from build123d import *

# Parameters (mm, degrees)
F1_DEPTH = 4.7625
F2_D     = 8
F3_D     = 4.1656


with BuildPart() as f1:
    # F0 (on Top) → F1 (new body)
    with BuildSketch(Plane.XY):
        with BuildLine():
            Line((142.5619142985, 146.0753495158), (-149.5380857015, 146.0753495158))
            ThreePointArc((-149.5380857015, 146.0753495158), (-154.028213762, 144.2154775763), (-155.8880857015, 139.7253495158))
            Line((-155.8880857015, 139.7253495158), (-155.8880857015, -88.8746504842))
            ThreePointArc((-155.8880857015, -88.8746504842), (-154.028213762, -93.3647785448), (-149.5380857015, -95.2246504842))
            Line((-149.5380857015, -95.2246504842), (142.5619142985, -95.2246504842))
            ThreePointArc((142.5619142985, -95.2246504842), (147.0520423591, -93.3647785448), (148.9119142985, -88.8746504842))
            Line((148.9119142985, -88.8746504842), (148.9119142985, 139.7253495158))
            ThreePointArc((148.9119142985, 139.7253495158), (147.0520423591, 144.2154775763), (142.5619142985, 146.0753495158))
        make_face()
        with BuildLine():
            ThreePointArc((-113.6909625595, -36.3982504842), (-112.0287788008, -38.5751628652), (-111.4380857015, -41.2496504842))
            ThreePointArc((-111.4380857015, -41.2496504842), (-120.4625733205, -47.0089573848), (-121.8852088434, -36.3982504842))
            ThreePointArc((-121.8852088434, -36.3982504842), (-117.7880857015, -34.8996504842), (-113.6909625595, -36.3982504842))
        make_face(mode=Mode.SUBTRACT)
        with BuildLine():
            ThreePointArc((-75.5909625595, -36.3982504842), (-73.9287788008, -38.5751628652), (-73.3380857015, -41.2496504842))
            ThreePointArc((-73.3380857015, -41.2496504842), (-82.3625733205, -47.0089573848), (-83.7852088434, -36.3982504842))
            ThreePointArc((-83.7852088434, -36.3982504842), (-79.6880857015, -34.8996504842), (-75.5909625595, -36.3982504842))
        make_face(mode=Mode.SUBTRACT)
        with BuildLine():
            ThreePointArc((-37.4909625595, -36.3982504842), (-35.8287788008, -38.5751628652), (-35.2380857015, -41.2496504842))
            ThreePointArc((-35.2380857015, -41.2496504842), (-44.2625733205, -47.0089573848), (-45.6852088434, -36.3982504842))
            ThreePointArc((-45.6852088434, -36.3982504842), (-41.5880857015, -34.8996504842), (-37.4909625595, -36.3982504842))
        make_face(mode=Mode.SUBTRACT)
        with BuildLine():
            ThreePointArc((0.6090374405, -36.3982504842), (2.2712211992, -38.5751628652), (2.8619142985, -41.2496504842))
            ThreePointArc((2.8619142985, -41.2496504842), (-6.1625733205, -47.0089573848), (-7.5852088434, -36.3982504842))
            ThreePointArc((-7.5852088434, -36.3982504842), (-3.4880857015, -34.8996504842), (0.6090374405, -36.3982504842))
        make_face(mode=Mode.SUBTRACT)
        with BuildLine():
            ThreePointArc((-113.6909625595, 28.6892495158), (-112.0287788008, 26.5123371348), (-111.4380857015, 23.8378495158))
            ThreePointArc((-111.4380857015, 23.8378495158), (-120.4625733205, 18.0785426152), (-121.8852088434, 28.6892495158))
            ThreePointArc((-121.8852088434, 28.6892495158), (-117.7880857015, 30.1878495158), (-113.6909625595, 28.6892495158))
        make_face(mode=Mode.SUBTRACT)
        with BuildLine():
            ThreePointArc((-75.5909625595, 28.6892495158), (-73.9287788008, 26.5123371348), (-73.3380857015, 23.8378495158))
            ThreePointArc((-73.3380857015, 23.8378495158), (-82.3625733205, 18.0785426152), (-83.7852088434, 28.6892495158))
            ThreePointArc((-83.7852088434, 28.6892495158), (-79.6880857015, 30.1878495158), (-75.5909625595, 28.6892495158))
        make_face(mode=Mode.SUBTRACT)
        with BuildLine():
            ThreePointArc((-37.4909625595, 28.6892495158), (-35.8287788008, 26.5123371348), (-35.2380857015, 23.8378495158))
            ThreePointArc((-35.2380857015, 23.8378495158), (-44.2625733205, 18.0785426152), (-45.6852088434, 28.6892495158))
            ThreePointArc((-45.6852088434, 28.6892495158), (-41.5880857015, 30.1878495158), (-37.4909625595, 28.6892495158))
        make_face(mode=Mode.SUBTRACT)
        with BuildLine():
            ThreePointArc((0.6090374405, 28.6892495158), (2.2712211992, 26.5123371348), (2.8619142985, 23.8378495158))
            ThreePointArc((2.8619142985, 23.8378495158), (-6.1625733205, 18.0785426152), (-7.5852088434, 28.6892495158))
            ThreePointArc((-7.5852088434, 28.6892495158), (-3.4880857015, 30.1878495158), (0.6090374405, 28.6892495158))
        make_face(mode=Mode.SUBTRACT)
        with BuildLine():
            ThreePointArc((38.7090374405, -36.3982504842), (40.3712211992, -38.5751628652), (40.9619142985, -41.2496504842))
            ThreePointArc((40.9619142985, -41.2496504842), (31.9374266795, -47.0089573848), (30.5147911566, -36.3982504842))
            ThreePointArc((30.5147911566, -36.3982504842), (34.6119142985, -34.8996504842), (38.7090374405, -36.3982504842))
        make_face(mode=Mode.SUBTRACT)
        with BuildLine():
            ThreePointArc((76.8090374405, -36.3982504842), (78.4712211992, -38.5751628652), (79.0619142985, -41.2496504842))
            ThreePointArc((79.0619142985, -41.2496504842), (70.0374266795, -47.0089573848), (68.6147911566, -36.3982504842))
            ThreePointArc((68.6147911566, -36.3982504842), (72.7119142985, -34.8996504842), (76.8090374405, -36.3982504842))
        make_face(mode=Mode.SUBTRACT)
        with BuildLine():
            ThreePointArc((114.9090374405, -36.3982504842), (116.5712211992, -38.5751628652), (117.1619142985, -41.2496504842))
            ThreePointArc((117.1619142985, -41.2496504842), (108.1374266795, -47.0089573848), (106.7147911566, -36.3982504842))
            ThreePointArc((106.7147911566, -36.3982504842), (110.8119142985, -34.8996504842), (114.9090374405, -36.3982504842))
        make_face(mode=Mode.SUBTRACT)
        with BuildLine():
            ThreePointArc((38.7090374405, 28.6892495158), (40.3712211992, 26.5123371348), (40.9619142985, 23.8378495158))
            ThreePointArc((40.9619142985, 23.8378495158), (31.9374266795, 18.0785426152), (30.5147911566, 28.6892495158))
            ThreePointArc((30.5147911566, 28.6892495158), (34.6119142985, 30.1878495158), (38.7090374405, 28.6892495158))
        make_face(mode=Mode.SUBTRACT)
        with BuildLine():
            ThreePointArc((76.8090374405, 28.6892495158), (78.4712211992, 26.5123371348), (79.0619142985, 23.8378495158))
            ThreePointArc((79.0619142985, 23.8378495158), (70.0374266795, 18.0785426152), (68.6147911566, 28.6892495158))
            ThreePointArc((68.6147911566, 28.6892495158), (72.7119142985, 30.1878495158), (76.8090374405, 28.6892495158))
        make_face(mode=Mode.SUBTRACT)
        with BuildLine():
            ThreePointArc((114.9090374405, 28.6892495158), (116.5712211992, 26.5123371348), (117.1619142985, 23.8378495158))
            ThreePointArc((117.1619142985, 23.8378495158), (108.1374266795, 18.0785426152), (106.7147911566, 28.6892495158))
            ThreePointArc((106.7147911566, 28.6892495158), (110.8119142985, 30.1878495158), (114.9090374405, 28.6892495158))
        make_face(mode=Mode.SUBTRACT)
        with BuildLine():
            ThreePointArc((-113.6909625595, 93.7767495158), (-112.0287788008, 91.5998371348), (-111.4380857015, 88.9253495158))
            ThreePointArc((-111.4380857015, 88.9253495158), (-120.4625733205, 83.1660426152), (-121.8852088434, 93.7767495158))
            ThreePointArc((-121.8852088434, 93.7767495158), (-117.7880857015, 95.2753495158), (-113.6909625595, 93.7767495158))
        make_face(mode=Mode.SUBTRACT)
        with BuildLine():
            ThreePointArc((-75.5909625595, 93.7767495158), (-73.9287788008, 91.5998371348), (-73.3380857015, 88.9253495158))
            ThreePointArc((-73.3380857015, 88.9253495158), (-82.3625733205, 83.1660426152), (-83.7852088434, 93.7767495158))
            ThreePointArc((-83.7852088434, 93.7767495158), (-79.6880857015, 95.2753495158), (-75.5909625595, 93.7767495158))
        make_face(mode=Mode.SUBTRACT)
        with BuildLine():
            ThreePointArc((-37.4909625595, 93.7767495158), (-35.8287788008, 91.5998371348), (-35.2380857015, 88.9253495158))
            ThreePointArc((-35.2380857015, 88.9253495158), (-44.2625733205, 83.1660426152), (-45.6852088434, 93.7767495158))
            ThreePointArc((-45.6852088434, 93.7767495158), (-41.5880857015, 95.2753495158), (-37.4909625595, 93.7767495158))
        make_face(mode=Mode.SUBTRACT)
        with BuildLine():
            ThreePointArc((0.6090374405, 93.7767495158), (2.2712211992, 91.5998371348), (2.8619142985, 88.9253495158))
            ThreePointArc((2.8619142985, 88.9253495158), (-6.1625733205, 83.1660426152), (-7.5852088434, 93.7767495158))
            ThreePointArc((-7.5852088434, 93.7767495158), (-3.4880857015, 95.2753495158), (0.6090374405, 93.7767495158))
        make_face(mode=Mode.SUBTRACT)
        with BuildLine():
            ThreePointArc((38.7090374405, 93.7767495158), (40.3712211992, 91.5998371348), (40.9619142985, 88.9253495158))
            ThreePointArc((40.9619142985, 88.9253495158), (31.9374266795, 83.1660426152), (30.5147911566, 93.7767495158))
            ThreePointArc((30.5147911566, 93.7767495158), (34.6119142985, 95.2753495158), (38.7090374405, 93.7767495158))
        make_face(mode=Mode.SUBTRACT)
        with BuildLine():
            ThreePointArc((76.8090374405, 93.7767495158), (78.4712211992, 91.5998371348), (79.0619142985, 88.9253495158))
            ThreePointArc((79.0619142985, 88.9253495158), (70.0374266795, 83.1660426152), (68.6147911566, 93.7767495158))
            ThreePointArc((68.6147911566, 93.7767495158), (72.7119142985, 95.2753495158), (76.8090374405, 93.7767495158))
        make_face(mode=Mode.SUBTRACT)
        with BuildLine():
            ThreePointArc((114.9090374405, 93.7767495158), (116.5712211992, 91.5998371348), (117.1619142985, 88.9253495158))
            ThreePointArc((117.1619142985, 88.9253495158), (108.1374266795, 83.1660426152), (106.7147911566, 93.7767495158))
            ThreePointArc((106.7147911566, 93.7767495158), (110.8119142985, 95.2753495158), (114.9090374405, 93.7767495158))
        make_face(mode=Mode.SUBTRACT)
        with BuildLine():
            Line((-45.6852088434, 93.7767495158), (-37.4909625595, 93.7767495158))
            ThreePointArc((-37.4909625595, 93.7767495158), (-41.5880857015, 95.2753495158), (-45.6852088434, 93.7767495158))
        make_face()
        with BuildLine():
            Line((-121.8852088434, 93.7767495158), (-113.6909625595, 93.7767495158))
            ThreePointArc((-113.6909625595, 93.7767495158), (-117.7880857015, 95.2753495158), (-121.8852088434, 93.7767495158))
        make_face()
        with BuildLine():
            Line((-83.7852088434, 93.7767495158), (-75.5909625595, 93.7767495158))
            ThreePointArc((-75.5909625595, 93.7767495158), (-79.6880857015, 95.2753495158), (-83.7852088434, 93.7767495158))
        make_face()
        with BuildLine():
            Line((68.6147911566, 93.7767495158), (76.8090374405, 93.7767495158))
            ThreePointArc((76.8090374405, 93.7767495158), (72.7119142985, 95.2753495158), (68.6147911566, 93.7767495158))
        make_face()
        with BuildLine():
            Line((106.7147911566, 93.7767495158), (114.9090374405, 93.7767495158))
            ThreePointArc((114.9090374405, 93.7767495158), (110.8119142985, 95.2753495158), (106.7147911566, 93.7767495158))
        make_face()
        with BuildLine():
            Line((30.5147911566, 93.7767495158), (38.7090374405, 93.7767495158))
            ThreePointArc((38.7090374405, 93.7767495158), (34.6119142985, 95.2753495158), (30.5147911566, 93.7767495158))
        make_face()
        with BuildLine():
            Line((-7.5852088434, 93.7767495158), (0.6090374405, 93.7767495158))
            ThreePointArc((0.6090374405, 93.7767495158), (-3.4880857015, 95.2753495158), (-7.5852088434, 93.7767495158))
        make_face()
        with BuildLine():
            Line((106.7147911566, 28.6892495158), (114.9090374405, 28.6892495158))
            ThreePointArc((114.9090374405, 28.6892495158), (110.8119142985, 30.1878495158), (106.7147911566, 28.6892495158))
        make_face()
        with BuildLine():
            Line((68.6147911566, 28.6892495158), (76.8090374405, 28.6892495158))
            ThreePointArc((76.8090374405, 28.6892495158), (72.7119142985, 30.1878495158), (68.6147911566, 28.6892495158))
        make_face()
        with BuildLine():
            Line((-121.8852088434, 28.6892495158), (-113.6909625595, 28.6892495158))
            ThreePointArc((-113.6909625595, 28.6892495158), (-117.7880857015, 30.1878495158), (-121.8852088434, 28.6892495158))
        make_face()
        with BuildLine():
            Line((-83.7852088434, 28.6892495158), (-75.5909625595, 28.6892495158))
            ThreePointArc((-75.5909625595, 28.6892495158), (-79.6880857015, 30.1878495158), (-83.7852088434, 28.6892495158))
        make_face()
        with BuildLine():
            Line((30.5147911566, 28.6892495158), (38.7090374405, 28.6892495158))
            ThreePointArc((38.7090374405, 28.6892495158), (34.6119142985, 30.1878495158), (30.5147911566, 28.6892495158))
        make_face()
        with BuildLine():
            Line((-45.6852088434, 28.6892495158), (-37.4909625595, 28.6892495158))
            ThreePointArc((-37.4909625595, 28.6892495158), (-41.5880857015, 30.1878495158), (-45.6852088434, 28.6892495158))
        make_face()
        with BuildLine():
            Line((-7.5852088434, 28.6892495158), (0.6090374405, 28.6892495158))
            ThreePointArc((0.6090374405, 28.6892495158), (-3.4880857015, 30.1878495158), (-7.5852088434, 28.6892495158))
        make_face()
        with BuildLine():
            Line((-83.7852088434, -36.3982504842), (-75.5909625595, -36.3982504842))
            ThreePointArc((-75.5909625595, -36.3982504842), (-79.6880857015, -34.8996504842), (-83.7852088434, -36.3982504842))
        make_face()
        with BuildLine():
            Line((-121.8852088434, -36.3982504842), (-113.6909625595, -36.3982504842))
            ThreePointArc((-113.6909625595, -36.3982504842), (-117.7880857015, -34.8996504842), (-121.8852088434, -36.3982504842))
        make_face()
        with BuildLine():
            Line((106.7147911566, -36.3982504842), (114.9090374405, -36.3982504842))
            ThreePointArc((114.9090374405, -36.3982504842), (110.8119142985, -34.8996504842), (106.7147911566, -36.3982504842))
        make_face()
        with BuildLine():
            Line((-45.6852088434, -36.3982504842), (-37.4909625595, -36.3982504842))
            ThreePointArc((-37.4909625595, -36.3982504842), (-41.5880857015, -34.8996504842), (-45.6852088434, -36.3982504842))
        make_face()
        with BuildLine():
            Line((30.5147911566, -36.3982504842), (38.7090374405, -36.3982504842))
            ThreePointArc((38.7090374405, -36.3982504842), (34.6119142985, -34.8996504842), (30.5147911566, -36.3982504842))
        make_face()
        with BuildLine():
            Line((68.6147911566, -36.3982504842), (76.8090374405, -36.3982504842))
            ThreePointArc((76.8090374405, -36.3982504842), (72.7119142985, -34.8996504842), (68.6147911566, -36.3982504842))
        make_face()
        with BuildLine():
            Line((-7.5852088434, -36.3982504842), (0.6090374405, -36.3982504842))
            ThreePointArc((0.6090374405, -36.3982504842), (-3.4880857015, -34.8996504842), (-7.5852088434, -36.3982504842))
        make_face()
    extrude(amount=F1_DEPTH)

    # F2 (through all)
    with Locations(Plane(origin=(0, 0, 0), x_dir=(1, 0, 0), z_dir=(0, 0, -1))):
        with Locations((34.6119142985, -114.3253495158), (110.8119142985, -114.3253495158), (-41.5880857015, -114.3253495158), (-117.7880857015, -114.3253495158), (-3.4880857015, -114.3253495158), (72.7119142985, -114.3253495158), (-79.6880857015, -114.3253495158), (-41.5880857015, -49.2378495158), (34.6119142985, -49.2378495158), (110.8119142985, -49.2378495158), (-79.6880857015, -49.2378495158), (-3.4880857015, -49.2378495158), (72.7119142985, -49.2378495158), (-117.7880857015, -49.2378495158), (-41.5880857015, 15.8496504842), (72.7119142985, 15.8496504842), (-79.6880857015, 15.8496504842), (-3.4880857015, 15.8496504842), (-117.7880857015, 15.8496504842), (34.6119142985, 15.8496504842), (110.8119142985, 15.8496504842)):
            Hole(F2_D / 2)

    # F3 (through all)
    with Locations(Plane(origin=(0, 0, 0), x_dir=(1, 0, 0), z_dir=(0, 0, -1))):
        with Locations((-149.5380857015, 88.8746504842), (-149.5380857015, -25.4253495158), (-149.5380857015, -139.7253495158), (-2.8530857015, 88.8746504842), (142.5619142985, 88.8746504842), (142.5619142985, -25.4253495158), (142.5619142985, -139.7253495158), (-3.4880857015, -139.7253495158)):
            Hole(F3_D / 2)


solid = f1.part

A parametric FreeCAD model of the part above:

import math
import FreeCAD as App
import Part
import Sketcher
Q = App.Units.Quantity

doc = App.newDocument("Part")
params = doc.addObject("Spreadsheet::Sheet", "Params")
for row, (alias, value) in enumerate([
    ("sketch1_height", "9 in"),
    ("sketch1_radius", "0.25 in"),
    ("sketch1_width", "11.5 in"),
    ("pad1_length", "0.1875 in"),
    ("hole_diameter", "8 mm"),
    ("sketch3_diameter", "0.164 in"),
    ("hole2_diameter", "0.164 in"),
], start=1):
    params.set(f"A{row}", alias)
    params.set(f"B{row}", "=" + value)
    params.setAlias(f"B{row}", alias)

body = doc.addObject("PartDesign::Body", "Body")

# Sketch on XY plane
sketch1 = body.newObject("Sketcher::SketchObject", "Sketch")
sketch1.AttachmentSupport = (doc.getObject("XY_Plane"), [""])
sketch1.MapMode = "FlatFace"
sketch1.addGeometry(Part.LineSegment(App.Vector(143, 146, 0), App.Vector(-150, 146, 0)), False)
sketch1.addGeometry(Part.ArcOfCircle(Part.Circle(App.Vector(-150, 140, 0), App.Vector(0, 0, 1), 6), math.radians(90), math.radians(180)), False)
sketch1.addGeometry(Part.LineSegment(App.Vector(-156, 140, 0), App.Vector(-156, -89, 0)), False)
sketch1.addGeometry(Part.ArcOfCircle(Part.Circle(App.Vector(-150, -89, 0), App.Vector(0, 0, 1), 6), math.radians(180), math.radians(270)), False)
sketch1.addGeometry(Part.LineSegment(App.Vector(-150, -95, 0), App.Vector(143, -95, 0)), False)
sketch1.addGeometry(Part.ArcOfCircle(Part.Circle(App.Vector(143, -89, 0), App.Vector(0, 0, 1), 6), math.radians(-90), math.radians(0)), False)
sketch1.addGeometry(Part.LineSegment(App.Vector(149, -89, 0), App.Vector(149, 140, 0)), False)
sketch1.addGeometry(Part.ArcOfCircle(Part.Circle(App.Vector(143, 140, 0), App.Vector(0, 0, 1), 6), math.radians(0), math.radians(90)), False)
sketch1.addGeometry(Part.ArcOfCircle(Part.Circle(App.Vector(-118, -41, 0), App.Vector(0, 0, 1), 6), math.radians(0), math.radians(50)), False)
sketch1.addGeometry(Part.ArcOfCircle(Part.Circle(App.Vector(-118, -41, 0), App.Vector(0, 0, 1), 6), math.radians(130), math.radians(360)), False)
sketch1.addGeometry(Part.LineSegment(App.Vector(-122, -36, 0), App.Vector(-114, -36, 0)), False)
sketch1.addGeometry(Part.ArcOfCircle(Part.Circle(App.Vector(-80, -41, 0), App.Vector(0, 0, 1), 6), math.radians(0), math.radians(50)), False)
sketch1.addGeometry(Part.ArcOfCircle(Part.Circle(App.Vector(-80, -41, 0), App.Vector(0, 0, 1), 6), math.radians(130), math.radians(360)), False)
sketch1.addGeometry(Part.LineSegment(App.Vector(-84, -36, 0), App.Vector(-76, -36, 0)), False)
sketch1.addGeometry(Part.ArcOfCircle(Part.Circle(App.Vector(-42, -41, 0), App.Vector(0, 0, 1), 6), math.radians(0), math.radians(50)), False)
sketch1.addGeometry(Part.ArcOfCircle(Part.Circle(App.Vector(-42, -41, 0), App.Vector(0, 0, 1), 6), math.radians(130), math.radians(360)), False)
sketch1.addGeometry(Part.LineSegment(App.Vector(-46, -36, 0), App.Vector(-37, -36, 0)), False)
sketch1.addGeometry(Part.ArcOfCircle(Part.Circle(App.Vector(-3, -41, 0), App.Vector(0, 0, 1), 6), math.radians(0), math.radians(50)), False)
sketch1.addGeometry(Part.ArcOfCircle(Part.Circle(App.Vector(-3, -41, 0), App.Vector(0, 0, 1), 6), math.radians(130), math.radians(360)), False)
sketch1.addGeometry(Part.LineSegment(App.Vector(-8, -36, 0), App.Vector(1, -36, 0)), False)
sketch1.addGeometry(Part.ArcOfCircle(Part.Circle(App.Vector(35, -41, 0), App.Vector(0, 0, 1), 6), math.radians(0), math.radians(50)), False)
sketch1.addGeometry(Part.ArcOfCircle(Part.Circle(App.Vector(35, -41, 0), App.Vector(0, 0, 1), 6), math.radians(130), math.radians(360)), False)
sketch1.addGeometry(Part.LineSegment(App.Vector(31, -36, 0), App.Vector(39, -36, 0)), False)
sketch1.addGeometry(Part.ArcOfCircle(Part.Circle(App.Vector(73, -41, 0), App.Vector(0, 0, 1), 6), math.radians(0), math.radians(50)), False)
sketch1.addGeometry(Part.ArcOfCircle(Part.Circle(App.Vector(73, -41, 0), App.Vector(0, 0, 1), 6), math.radians(130), math.radians(360)), False)
sketch1.addGeometry(Part.LineSegment(App.Vector(69, -36, 0), App.Vector(77, -36, 0)), False)
sketch1.addGeometry(Part.ArcOfCircle(Part.Circle(App.Vector(111, -41, 0), App.Vector(0, 0, 1), 6), math.radians(0), math.radians(50)), False)
sketch1.addGeometry(Part.ArcOfCircle(Part.Circle(App.Vector(111, -41, 0), App.Vector(0, 0, 1), 6), math.radians(130), math.radians(360)), False)
sketch1.addGeometry(Part.LineSegment(App.Vector(107, -36, 0), App.Vector(115, -36, 0)), False)
sketch1.addGeometry(Part.ArcOfCircle(Part.Circle(App.Vector(-118, 24, 0), App.Vector(0, 0, 1), 6), math.radians(0), math.radians(50)), False)
sketch1.addGeometry(Part.ArcOfCircle(Part.Circle(App.Vector(-118, 24, 0), App.Vector(0, 0, 1), 6), math.radians(130), math.radians(360)), False)
sketch1.addGeometry(Part.LineSegment(App.Vector(-122, 29, 0), App.Vector(-114, 29, 0)), False)
sketch1.addGeometry(Part.ArcOfCircle(Part.Circle(App.Vector(-80, 24, 0), App.Vector(0, 0, 1), 6), math.radians(0), math.radians(50)), False)
sketch1.addGeometry(Part.ArcOfCircle(Part.Circle(App.Vector(-80, 24, 0), App.Vector(0, 0, 1), 6), math.radians(130), math.radians(360)), False)
sketch1.addGeometry(Part.LineSegment(App.Vector(-84, 29, 0), App.Vector(-76, 29, 0)), False)
sketch1.addGeometry(Part.ArcOfCircle(Part.Circle(App.Vector(-42, 24, 0), App.Vector(0, 0, 1), 6), math.radians(0), math.radians(50)), False)
sketch1.addGeometry(Part.ArcOfCircle(Part.Circle(App.Vector(-42, 24, 0), App.Vector(0, 0, 1), 6), math.radians(130), math.radians(360)), False)
sketch1.addGeometry(Part.LineSegment(App.Vector(-46, 29, 0), App.Vector(-37, 29, 0)), False)
sketch1.addGeometry(Part.ArcOfCircle(Part.Circle(App.Vector(-118, 89, 0), App.Vector(0, 0, 1), 6), math.radians(0), math.radians(50)), False)
sketch1.addGeometry(Part.ArcOfCircle(Part.Circle(App.Vector(-118, 89, 0), App.Vector(0, 0, 1), 6), math.radians(130), math.radians(360)), False)
sketch1.addGeometry(Part.LineSegment(App.Vector(-122, 94, 0), App.Vector(-114, 94, 0)), False)
sketch1.addGeometry(Part.ArcOfCircle(Part.Circle(App.Vector(-80, 89, 0), App.Vector(0, 0, 1), 6), math.radians(0), math.radians(50)), False)
sketch1.addGeometry(Part.ArcOfCircle(Part.Circle(App.Vector(-80, 89, 0), App.Vector(0, 0, 1), 6), math.radians(130), math.radians(360)), False)
sketch1.addGeometry(Part.LineSegment(App.Vector(-84, 94, 0), App.Vector(-76, 94, 0)), False)
sketch1.addGeometry(Part.ArcOfCircle(Part.Circle(App.Vector(-42, 89, 0), App.Vector(0, 0, 1), 6), math.radians(130), math.radians(360)), False)
sketch1.addGeometry(Part.LineSegment(App.Vector(-46, 94, 0), App.Vector(-37, 94, 0)), False)
sketch1.addGeometry(Part.ArcOfCircle(Part.Circle(App.Vector(-42, 89, 0), App.Vector(0, 0, 1), 6), math.radians(0), math.radians(50)), False)
sketch1.addGeometry(Part.ArcOfCircle(Part.Circle(App.Vector(-3, 24, 0), App.Vector(0, 0, 1), 6), math.radians(0), math.radians(50)), False)
sketch1.addGeometry(Part.ArcOfCircle(Part.Circle(App.Vector(-3, 24, 0), App.Vector(0, 0, 1), 6), math.radians(130), math.radians(360)), False)
sketch1.addGeometry(Part.LineSegment(App.Vector(-8, 29, 0), App.Vector(1, 29, 0)), False)
sketch1.addGeometry(Part.ArcOfCircle(Part.Circle(App.Vector(35, 24, 0), App.Vector(0, 0, 1), 6), math.radians(0), math.radians(50)), False)
sketch1.addGeometry(Part.ArcOfCircle(Part.Circle(App.Vector(35, 24, 0), App.Vector(0, 0, 1), 6), math.radians(130), math.radians(360)), False)
sketch1.addGeometry(Part.LineSegment(App.Vector(31, 29, 0), App.Vector(39, 29, 0)), False)
sketch1.addGeometry(Part.ArcOfCircle(Part.Circle(App.Vector(73, 24, 0), App.Vector(0, 0, 1), 6), math.radians(0), math.radians(50)), False)
sketch1.addGeometry(Part.ArcOfCircle(Part.Circle(App.Vector(73, 24, 0), App.Vector(0, 0, 1), 6), math.radians(130), math.radians(360)), False)
sketch1.addGeometry(Part.LineSegment(App.Vector(69, 29, 0), App.Vector(77, 29, 0)), False)
sketch1.addGeometry(Part.ArcOfCircle(Part.Circle(App.Vector(111, 24, 0), App.Vector(0, 0, 1), 6), math.radians(0), math.radians(50)), False)
sketch1.addGeometry(Part.ArcOfCircle(Part.Circle(App.Vector(111, 24, 0), App.Vector(0, 0, 1), 6), math.radians(130), math.radians(360)), False)
sketch1.addGeometry(Part.LineSegment(App.Vector(107, 29, 0), App.Vector(115, 29, 0)), False)
sketch1.addGeometry(Part.ArcOfCircle(Part.Circle(App.Vector(-3, 89, 0), App.Vector(0, 0, 1), 6), math.radians(0), math.radians(50)), False)
sketch1.addGeometry(Part.ArcOfCircle(Part.Circle(App.Vector(-3, 89, 0), App.Vector(0, 0, 1), 6), math.radians(130), math.radians(360)), False)
sketch1.addGeometry(Part.LineSegment(App.Vector(-8, 94, 0), App.Vector(1, 94, 0)), False)
sketch1.addGeometry(Part.ArcOfCircle(Part.Circle(App.Vector(35, 89, 0), App.Vector(0, 0, 1), 6), math.radians(0), math.radians(50)), False)
sketch1.addGeometry(Part.ArcOfCircle(Part.Circle(App.Vector(35, 89, 0), App.Vector(0, 0, 1), 6), math.radians(130), math.radians(360)), False)
sketch1.addGeometry(Part.LineSegment(App.Vector(31, 94, 0), App.Vector(39, 94, 0)), False)
sketch1.addGeometry(Part.ArcOfCircle(Part.Circle(App.Vector(73, 89, 0), App.Vector(0, 0, 1), 6), math.radians(0), math.radians(50)), False)
sketch1.addGeometry(Part.ArcOfCircle(Part.Circle(App.Vector(73, 89, 0), App.Vector(0, 0, 1), 6), math.radians(130), math.radians(360)), False)
sketch1.addGeometry(Part.LineSegment(App.Vector(69, 94, 0), App.Vector(77, 94, 0)), False)
sketch1.addGeometry(Part.ArcOfCircle(Part.Circle(App.Vector(111, 89, 0), App.Vector(0, 0, 1), 6), math.radians(0), math.radians(50)), False)
sketch1.addGeometry(Part.ArcOfCircle(Part.Circle(App.Vector(111, 89, 0), App.Vector(0, 0, 1), 6), math.radians(130), math.radians(360)), False)
sketch1.addGeometry(Part.LineSegment(App.Vector(107, 94, 0), App.Vector(115, 94, 0)), False)
sketch1.addConstraint(Sketcher.Constraint("Tangent", 0, 2, 1, 1))
sketch1.addConstraint(Sketcher.Constraint("Tangent", 1, 2, 2, 1))
sketch1.addConstraint(Sketcher.Constraint("Tangent", 2, 2, 3, 1))
sketch1.addConstraint(Sketcher.Constraint("Tangent", 3, 2, 4, 1))
sketch1.addConstraint(Sketcher.Constraint("Tangent", 4, 2, 5, 1))
sketch1.addConstraint(Sketcher.Constraint("Tangent", 5, 2, 6, 1))
sketch1.addConstraint(Sketcher.Constraint("Tangent", 6, 2, 7, 1))
sketch1.addConstraint(Sketcher.Constraint("Tangent", 7, 2, 0, 1))
sketch1.addConstraint(Sketcher.Constraint("Tangent", 8, 1, 9, 2))
sketch1.addConstraint(Sketcher.Constraint("Coincident", 9, 1, 10, 1))
sketch1.addConstraint(Sketcher.Constraint("Coincident", 10, 2, 8, 2))
sketch1.addConstraint(Sketcher.Constraint("Tangent", 11, 1, 12, 2))
sketch1.addConstraint(Sketcher.Constraint("Coincident", 12, 1, 13, 1))
sketch1.addConstraint(Sketcher.Constraint("Coincident", 13, 2, 11, 2))
sketch1.addConstraint(Sketcher.Constraint("Tangent", 14, 1, 15, 2))
sketch1.addConstraint(Sketcher.Constraint("Coincident", 15, 1, 16, 1))
sketch1.addConstraint(Sketcher.Constraint("Coincident", 16, 2, 14, 2))
sketch1.addConstraint(Sketcher.Constraint("Tangent", 17, 1, 18, 2))
sketch1.addConstraint(Sketcher.Constraint("Coincident", 18, 1, 19, 1))
sketch1.addConstraint(Sketcher.Constraint("Coincident", 19, 2, 17, 2))
sketch1.addConstraint(Sketcher.Constraint("Tangent", 20, 1, 21, 2))
sketch1.addConstraint(Sketcher.Constraint("Coincident", 21, 1, 22, 1))
sketch1.addConstraint(Sketcher.Constraint("Coincident", 22, 2, 20, 2))
sketch1.addConstraint(Sketcher.Constraint("Tangent", 23, 1, 24, 2))
sketch1.addConstraint(Sketcher.Constraint("Coincident", 24, 1, 25, 1))
sketch1.addConstraint(Sketcher.Constraint("Coincident", 25, 2, 23, 2))
sketch1.addConstraint(Sketcher.Constraint("Tangent", 26, 1, 27, 2))
sketch1.addConstraint(Sketcher.Constraint("Coincident", 27, 1, 28, 1))
sketch1.addConstraint(Sketcher.Constraint("Coincident", 28, 2, 26, 2))
sketch1.addConstraint(Sketcher.Constraint("Tangent", 29, 1, 30, 2))
sketch1.addConstraint(Sketcher.Constraint("Coincident", 30, 1, 31, 1))
sketch1.addConstraint(Sketcher.Constraint("Coincident", 31, 2, 29, 2))
sketch1.addConstraint(Sketcher.Constraint("Tangent", 32, 1, 33, 2))
sketch1.addConstraint(Sketcher.Constraint("Coincident", 33, 1, 34, 1))
sketch1.addConstraint(Sketcher.Constraint("Coincident", 34, 2, 32, 2))
sketch1.addConstraint(Sketcher.Constraint("Tangent", 35, 1, 36, 2))
sketch1.addConstraint(Sketcher.Constraint("Coincident", 36, 1, 37, 1))
sketch1.addConstraint(Sketcher.Constraint("Coincident", 37, 2, 35, 2))
sketch1.addConstraint(Sketcher.Constraint("Tangent", 38, 1, 39, 2))
sketch1.addConstraint(Sketcher.Constraint("Coincident", 39, 1, 40, 1))
sketch1.addConstraint(Sketcher.Constraint("Coincident", 40, 2, 38, 2))
sketch1.addConstraint(Sketcher.Constraint("Tangent", 41, 1, 42, 2))
sketch1.addConstraint(Sketcher.Constraint("Coincident", 42, 1, 43, 1))
sketch1.addConstraint(Sketcher.Constraint("Coincident", 43, 2, 41, 2))
sketch1.addConstraint(Sketcher.Constraint("Coincident", 44, 1, 45, 1))
sketch1.addConstraint(Sketcher.Constraint("Coincident", 45, 2, 46, 2))
sketch1.addConstraint(Sketcher.Constraint("Tangent", 46, 1, 44, 2))
sketch1.addConstraint(Sketcher.Constraint("Tangent", 47, 1, 48, 2))
sketch1.addConstraint(Sketcher.Constraint("Coincident", 48, 1, 49, 1))
sketch1.addConstraint(Sketcher.Constraint("Coincident", 49, 2, 47, 2))
sketch1.addConstraint(Sketcher.Constraint("Tangent", 50, 1, 51, 2))
sketch1.addConstraint(Sketcher.Constraint("Coincident", 51, 1, 52, 1))
sketch1.addConstraint(Sketcher.Constraint("Coincident", 52, 2, 50, 2))
sketch1.addConstraint(Sketcher.Constraint("Tangent", 53, 1, 54, 2))
sketch1.addConstraint(Sketcher.Constraint("Coincident", 54, 1, 55, 1))
sketch1.addConstraint(Sketcher.Constraint("Coincident", 55, 2, 53, 2))
sketch1.addConstraint(Sketcher.Constraint("Tangent", 56, 1, 57, 2))
sketch1.addConstraint(Sketcher.Constraint("Coincident", 57, 1, 58, 1))
sketch1.addConstraint(Sketcher.Constraint("Coincident", 58, 2, 56, 2))
sketch1.addConstraint(Sketcher.Constraint("Tangent", 59, 1, 60, 2))
sketch1.addConstraint(Sketcher.Constraint("Coincident", 60, 1, 61, 1))
sketch1.addConstraint(Sketcher.Constraint("Coincident", 61, 2, 59, 2))
sketch1.addConstraint(Sketcher.Constraint("Tangent", 62, 1, 63, 2))
sketch1.addConstraint(Sketcher.Constraint("Coincident", 63, 1, 64, 1))
sketch1.addConstraint(Sketcher.Constraint("Coincident", 64, 2, 62, 2))
sketch1.addConstraint(Sketcher.Constraint("Tangent", 65, 1, 66, 2))
sketch1.addConstraint(Sketcher.Constraint("Coincident", 66, 1, 67, 1))
sketch1.addConstraint(Sketcher.Constraint("Coincident", 67, 2, 65, 2))
sketch1.addConstraint(Sketcher.Constraint("Tangent", 68, 1, 69, 2))
sketch1.addConstraint(Sketcher.Constraint("Coincident", 69, 1, 70, 1))
sketch1.addConstraint(Sketcher.Constraint("Coincident", 70, 2, 68, 2))
sketch1.addConstraint(Sketcher.Constraint("Horizontal", 0))
sketch1.addConstraint(Sketcher.Constraint("Vertical", 2))
sketch1.addConstraint(Sketcher.Constraint("Horizontal", 4))
sketch1.addConstraint(Sketcher.Constraint("Vertical", 6))
sketch1.addConstraint(Sketcher.Constraint("Horizontal", 10))
sketch1.addConstraint(Sketcher.Constraint("Horizontal", 13))
sketch1.addConstraint(Sketcher.Constraint("Horizontal", 16))
sketch1.addConstraint(Sketcher.Constraint("Horizontal", 19))
sketch1.addConstraint(Sketcher.Constraint("Horizontal", 22))
sketch1.addConstraint(Sketcher.Constraint("Horizontal", 25))
sketch1.addConstraint(Sketcher.Constraint("Horizontal", 28))
sketch1.addConstraint(Sketcher.Constraint("Horizontal", 31))
sketch1.addConstraint(Sketcher.Constraint("Horizontal", 34))
sketch1.addConstraint(Sketcher.Constraint("Horizontal", 37))
sketch1.addConstraint(Sketcher.Constraint("Horizontal", 40))
sketch1.addConstraint(Sketcher.Constraint("Horizontal", 43))
sketch1.addConstraint(Sketcher.Constraint("Horizontal", 45))
sketch1.addConstraint(Sketcher.Constraint("Horizontal", 49))
sketch1.addConstraint(Sketcher.Constraint("Horizontal", 52))
sketch1.addConstraint(Sketcher.Constraint("Horizontal", 55))
sketch1.addConstraint(Sketcher.Constraint("Horizontal", 58))
sketch1.addConstraint(Sketcher.Constraint("Horizontal", 61))
sketch1.addConstraint(Sketcher.Constraint("Horizontal", 64))
sketch1.addConstraint(Sketcher.Constraint("Horizontal", 67))
sketch1.addConstraint(Sketcher.Constraint("Horizontal", 70))
sketch1.addConstraint(Sketcher.Constraint("Equal", 1, 3))
sketch1.addConstraint(Sketcher.Constraint("Equal", 3, 5))
sketch1.addConstraint(Sketcher.Constraint("Equal", 5, 7))
sketch1.addConstraint(Sketcher.Constraint("Equal", 7, 8))
sketch1.addConstraint(Sketcher.Constraint("Equal", 8, 9))
sketch1.addConstraint(Sketcher.Constraint("Equal", 9, 11))
sketch1.addConstraint(Sketcher.Constraint("Equal", 11, 12))
sketch1.addConstraint(Sketcher.Constraint("Equal", 12, 14))
sketch1.addConstraint(Sketcher.Constraint("Equal", 14, 15))
sketch1.addConstraint(Sketcher.Constraint("Equal", 15, 17))
sketch1.addConstraint(Sketcher.Constraint("Equal", 17, 18))
sketch1.addConstraint(Sketcher.Constraint("Equal", 18, 20))
sketch1.addConstraint(Sketcher.Constraint("Equal", 20, 21))
sketch1.addConstraint(Sketcher.Constraint("Equal", 21, 23))
sketch1.addConstraint(Sketcher.Constraint("Equal", 23, 24))
sketch1.addConstraint(Sketcher.Constraint("Equal", 24, 26))
sketch1.addConstraint(Sketcher.Constraint("Equal", 26, 27))
sketch1.addConstraint(Sketcher.Constraint("Equal", 27, 29))
sketch1.addConstraint(Sketcher.Constraint("Equal", 29, 30))
sketch1.addConstraint(Sketcher.Constraint("Equal", 30, 32))
sketch1.addConstraint(Sketcher.Constraint("Equal", 32, 33))
sketch1.addConstraint(Sketcher.Constraint("Equal", 33, 35))
sketch1.addConstraint(Sketcher.Constraint("Equal", 35, 36))
sketch1.addConstraint(Sketcher.Constraint("Equal", 36, 38))
sketch1.addConstraint(Sketcher.Constraint("Equal", 38, 39))
sketch1.addConstraint(Sketcher.Constraint("Equal", 39, 41))
sketch1.addConstraint(Sketcher.Constraint("Equal", 41, 42))
sketch1.addConstraint(Sketcher.Constraint("Equal", 42, 44))
sketch1.addConstraint(Sketcher.Constraint("Equal", 44, 46))
sketch1.addConstraint(Sketcher.Constraint("Equal", 46, 47))
sketch1.addConstraint(Sketcher.Constraint("Equal", 47, 48))
sketch1.addConstraint(Sketcher.Constraint("Equal", 48, 50))
sketch1.addConstraint(Sketcher.Constraint("Equal", 50, 51))
sketch1.addConstraint(Sketcher.Constraint("Equal", 51, 53))
sketch1.addConstraint(Sketcher.Constraint("Equal", 53, 54))
sketch1.addConstraint(Sketcher.Constraint("Equal", 54, 56))
sketch1.addConstraint(Sketcher.Constraint("Equal", 56, 57))
sketch1.addConstraint(Sketcher.Constraint("Equal", 57, 59))
sketch1.addConstraint(Sketcher.Constraint("Equal", 59, 60))
sketch1.addConstraint(Sketcher.Constraint("Equal", 60, 62))
sketch1.addConstraint(Sketcher.Constraint("Equal", 62, 63))
sketch1.addConstraint(Sketcher.Constraint("Equal", 63, 65))
sketch1.addConstraint(Sketcher.Constraint("Equal", 65, 66))
sketch1.addConstraint(Sketcher.Constraint("Equal", 66, 68))
sketch1.addConstraint(Sketcher.Constraint("Equal", 68, 69))
sketch1.addConstraint(Sketcher.Constraint("Horizontal", 9, 3, 11, 3))
sketch1.addConstraint(Sketcher.Constraint("Horizontal", 12, 3, 14, 3))
sketch1.addConstraint(Sketcher.Constraint("Horizontal", 15, 3, 17, 3))
sketch1.addConstraint(Sketcher.Constraint("Horizontal", 18, 3, 20, 3))
sketch1.addConstraint(Sketcher.Constraint("Horizontal", 21, 3, 23, 3))
sketch1.addConstraint(Sketcher.Constraint("Horizontal", 24, 3, 26, 3))
sketch1.addConstraint(Sketcher.Constraint("Horizontal", 30, 3, 32, 3))
sketch1.addConstraint(Sketcher.Constraint("Horizontal", 33, 3, 35, 3))
sketch1.addConstraint(Sketcher.Constraint("Horizontal", 39, 3, 41, 3))
sketch1.addConstraint(Sketcher.Constraint("Horizontal", 42, 3, 44, 3))
sketch1.addConstraint(Sketcher.Constraint("Horizontal", 36, 3, 47, 3))
sketch1.addConstraint(Sketcher.Constraint("Horizontal", 48, 3, 50, 3))
sketch1.addConstraint(Sketcher.Constraint("Horizontal", 51, 3, 53, 3))
sketch1.addConstraint(Sketcher.Constraint("Horizontal", 54, 3, 56, 3))
sketch1.addConstraint(Sketcher.Constraint("Horizontal", 46, 3, 59, 3))
sketch1.addConstraint(Sketcher.Constraint("Horizontal", 60, 3, 62, 3))
sketch1.addConstraint(Sketcher.Constraint("Horizontal", 63, 3, 65, 3))
sketch1.addConstraint(Sketcher.Constraint("Horizontal", 66, 3, 68, 3))
sketch1.addConstraint(Sketcher.Constraint("Horizontal", 27, 3, 8, 1))
sketch1.addConstraint(Sketcher.Constraint("Horizontal", 8, 1, 11, 1))
sketch1.addConstraint(Sketcher.Constraint("Horizontal", 10, 2, 12, 1))
sketch1.addConstraint(Sketcher.Constraint("Horizontal", 11, 1, 14, 1))
sketch1.addConstraint(Sketcher.Constraint("Horizontal", 13, 2, 15, 1))
sketch1.addConstraint(Sketcher.Constraint("Horizontal", 14, 1, 17, 1))
sketch1.addConstraint(Sketcher.Constraint("Horizontal", 16, 2, 18, 1))
sketch1.addConstraint(Sketcher.Constraint("Horizontal", 17, 1, 20, 1))
sketch1.addConstraint(Sketcher.Constraint("Horizontal", 19, 2, 21, 1))
sketch1.addConstraint(Sketcher.Constraint("Horizontal", 20, 1, 23, 1))
sketch1.addConstraint(Sketcher.Constraint("Horizontal", 22, 2, 24, 1))
sketch1.addConstraint(Sketcher.Constraint("Horizontal", 23, 1, 26, 1))
sketch1.addConstraint(Sketcher.Constraint("Horizontal", 25, 2, 27, 1))
sketch1.addConstraint(Sketcher.Constraint("Horizontal", 57, 3, 29, 1))
sketch1.addConstraint(Sketcher.Constraint("Horizontal", 29, 1, 32, 1))
sketch1.addConstraint(Sketcher.Constraint("Horizontal", 31, 2, 33, 1))
sketch1.addConstraint(Sketcher.Constraint("Horizontal", 32, 1, 35, 1))
sketch1.addConstraint(Sketcher.Constraint("Horizontal", 34, 2, 36, 1))
sketch1.addConstraint(Sketcher.Constraint("Horizontal", 69, 3, 38, 1))
sketch1.addConstraint(Sketcher.Constraint("Horizontal", 38, 1, 41, 1))
sketch1.addConstraint(Sketcher.Constraint("Horizontal", 40, 2, 42, 1))
sketch1.addConstraint(Sketcher.Constraint("Horizontal", 43, 2, 44, 1))
sketch1.addConstraint(Sketcher.Constraint("Horizontal", 41, 1, 46, 1))
sketch1.addConstraint(Sketcher.Constraint("Horizontal", 35, 1, 47, 1))
sketch1.addConstraint(Sketcher.Constraint("Horizontal", 37, 2, 48, 1))
sketch1.addConstraint(Sketcher.Constraint("Horizontal", 47, 1, 50, 1))
sketch1.addConstraint(Sketcher.Constraint("Horizontal", 49, 2, 51, 1))
sketch1.addConstraint(Sketcher.Constraint("Horizontal", 50, 1, 53, 1))
sketch1.addConstraint(Sketcher.Constraint("Horizontal", 52, 2, 54, 1))
sketch1.addConstraint(Sketcher.Constraint("Horizontal", 53, 1, 56, 1))
sketch1.addConstraint(Sketcher.Constraint("Horizontal", 55, 2, 57, 1))
sketch1.addConstraint(Sketcher.Constraint("Horizontal", 46, 1, 59, 1))
sketch1.addConstraint(Sketcher.Constraint("Horizontal", 45, 2, 60, 1))
sketch1.addConstraint(Sketcher.Constraint("Horizontal", 59, 1, 62, 1))
sketch1.addConstraint(Sketcher.Constraint("Horizontal", 61, 2, 63, 1))
sketch1.addConstraint(Sketcher.Constraint("Horizontal", 62, 1, 65, 1))
sketch1.addConstraint(Sketcher.Constraint("Horizontal", 64, 2, 66, 1))
sketch1.addConstraint(Sketcher.Constraint("Horizontal", 65, 1, 68, 1))
sketch1.addConstraint(Sketcher.Constraint("Horizontal", 67, 2, 69, 1))
sketch1.addConstraint(Sketcher.Constraint("Vertical", 9, 3, 29, 3))
sketch1.addConstraint(Sketcher.Constraint("Vertical", 12, 3, 32, 3))
sketch1.addConstraint(Sketcher.Constraint("Vertical", 15, 3, 35, 3))
sketch1.addConstraint(Sketcher.Constraint("Vertical", 30, 3, 38, 3))
sketch1.addConstraint(Sketcher.Constraint("Vertical", 33, 3, 41, 3))
sketch1.addConstraint(Sketcher.Constraint("Vertical", 36, 3, 44, 3))
sketch1.addConstraint(Sketcher.Constraint("Vertical", 18, 3, 47, 3))
sketch1.addConstraint(Sketcher.Constraint("Vertical", 21, 3, 50, 3))
sketch1.addConstraint(Sketcher.Constraint("Vertical", 24, 3, 53, 3))
sketch1.addConstraint(Sketcher.Constraint("Vertical", 27, 3, 56, 3))
sketch1.addConstraint(Sketcher.Constraint("Vertical", 48, 3, 59, 3))
sketch1.addConstraint(Sketcher.Constraint("Vertical", 51, 3, 62, 3))
sketch1.addConstraint(Sketcher.Constraint("Vertical", 54, 3, 65, 3))
sketch1.addConstraint(Sketcher.Constraint("Vertical", 57, 3, 68, 3))
sketch1.addConstraint(Sketcher.Constraint("Vertical", 9, 1, 30, 1))
sketch1.addConstraint(Sketcher.Constraint("Vertical", 30, 1, 39, 1))
sketch1.addConstraint(Sketcher.Constraint("DistanceY", 2, 2, 2, 1, Q("9 in")))
sketch1.addConstraint(Sketcher.Constraint("Radius", 1, Q("0.25 in")))
sketch1.addConstraint(Sketcher.Constraint("DistanceX", 0, 2, 0, 1, Q("11.5 in")))
sketch1.addConstraint(Sketcher.Constraint("DistanceX", 10, 1, 10, 2, Q("8.194246 mm")))
sketch1.addConstraint(Sketcher.Constraint("DistanceY", -1, 1, 1, 3, Q("139.72535 mm")))
sketch1.addConstraint(Sketcher.Constraint("DistanceY", 8, 3, -1, 1, Q("41.24965 mm")))
sketch1.addConstraint(Sketcher.Constraint("DistanceY", -1, 1, 29, 3, Q("23.83785 mm")))
sketch1.addConstraint(Sketcher.Constraint("DistanceY", -1, 1, 38, 3, Q("88.92535 mm")))
sketch1.addConstraint(Sketcher.Constraint("DistanceX", 9, 1, -1, 1, Q("121.885209 mm")))
sketch1.addConstraint(Sketcher.Constraint("DistanceX", 12, 1, -1, 1, Q("83.785209 mm")))
sketch1.addConstraint(Sketcher.Constraint("DistanceX", 15, 1, -1, 1, Q("45.685209 mm")))
sketch1.addConstraint(Sketcher.Constraint("DistanceX", 18, 1, -1, 1, Q("7.585209 mm")))
sketch1.addConstraint(Sketcher.Constraint("DistanceX", -1, 1, 21, 1, Q("30.514791 mm")))
sketch1.addConstraint(Sketcher.Constraint("DistanceX", -1, 1, 24, 1, Q("68.614791 mm")))
sketch1.addConstraint(Sketcher.Constraint("DistanceX", -1, 1, 27, 1, Q("106.714791 mm")))
sketch1.addConstraint(Sketcher.Constraint("DistanceX", 1, 3, -1, 1, Q("149.538086 mm")))
sketch1.setExpression("Constraints[214]", "Params.sketch1_height")
sketch1.setExpression("Constraints[215]", "Params.sketch1_radius")
sketch1.setExpression("Constraints[216]", "Params.sketch1_width")
pad1 = body.newObject("PartDesign::Pad", "Pad")
pad1.Profile = sketch1
pad1.setExpression("Length", "Params.pad1_length")

# Sketch on XY plane
sketch2 = body.newObject("Sketcher::SketchObject", "Sketch001")
sketch2.AttachmentSupport = (doc.getObject("XY_Plane"), [""])
sketch2.MapMode = "FlatFace"
sketch2.addGeometry(Part.Circle(App.Vector(34.6, 114.3, 0), App.Vector(0, 0, 1), 4), False)
sketch2.addGeometry(Part.Circle(App.Vector(110.8, 114.3, 0), App.Vector(0, 0, 1), 4), False)
sketch2.addGeometry(Part.Circle(App.Vector(-41.6, 114.3, 0), App.Vector(0, 0, 1), 4), False)
sketch2.addGeometry(Part.Circle(App.Vector(-117.8, 114.3, 0), App.Vector(0, 0, 1), 4), False)
sketch2.addGeometry(Part.Circle(App.Vector(-3.5, 114.3, 0), App.Vector(0, 0, 1), 4), False)
sketch2.addGeometry(Part.Circle(App.Vector(72.7, 114.3, 0), App.Vector(0, 0, 1), 4), False)
sketch2.addGeometry(Part.Circle(App.Vector(-79.7, 114.3, 0), App.Vector(0, 0, 1), 4), False)
sketch2.addGeometry(Part.Circle(App.Vector(-41.6, 49.2, 0), App.Vector(0, 0, 1), 4), False)
sketch2.addGeometry(Part.Circle(App.Vector(34.6, 49.2, 0), App.Vector(0, 0, 1), 4), False)
sketch2.addGeometry(Part.Circle(App.Vector(110.8, 49.2, 0), App.Vector(0, 0, 1), 4), False)
sketch2.addGeometry(Part.Circle(App.Vector(-79.7, 49.2, 0), App.Vector(0, 0, 1), 4), False)
sketch2.addGeometry(Part.Circle(App.Vector(-3.5, 49.2, 0), App.Vector(0, 0, 1), 4), False)
sketch2.addGeometry(Part.Circle(App.Vector(72.7, 49.2, 0), App.Vector(0, 0, 1), 4), False)
sketch2.addGeometry(Part.Circle(App.Vector(-117.8, 49.2, 0), App.Vector(0, 0, 1), 4), False)
sketch2.addGeometry(Part.Circle(App.Vector(-41.6, -15.8, 0), App.Vector(0, 0, 1), 4), False)
sketch2.addGeometry(Part.Circle(App.Vector(72.7, -15.8, 0), App.Vector(0, 0, 1), 4), False)
sketch2.addGeometry(Part.Circle(App.Vector(-79.7, -15.8, 0), App.Vector(0, 0, 1), 4), False)
sketch2.addGeometry(Part.Circle(App.Vector(-3.5, -15.8, 0), App.Vector(0, 0, 1), 4), False)
sketch2.addGeometry(Part.Circle(App.Vector(-117.8, -15.8, 0), App.Vector(0, 0, 1), 4), False)
sketch2.addGeometry(Part.Circle(App.Vector(34.6, -15.8, 0), App.Vector(0, 0, 1), 4), False)
sketch2.addGeometry(Part.Circle(App.Vector(110.8, -15.8, 0), App.Vector(0, 0, 1), 4), False)
sketch2.addConstraint(Sketcher.Constraint("Equal", 0, 1))
sketch2.addConstraint(Sketcher.Constraint("Equal", 1, 2))
sketch2.addConstraint(Sketcher.Constraint("Equal", 2, 3))
sketch2.addConstraint(Sketcher.Constraint("Equal", 3, 4))
sketch2.addConstraint(Sketcher.Constraint("Equal", 4, 5))
sketch2.addConstraint(Sketcher.Constraint("Equal", 5, 6))
sketch2.addConstraint(Sketcher.Constraint("Equal", 6, 7))
sketch2.addConstraint(Sketcher.Constraint("Equal", 7, 8))
sketch2.addConstraint(Sketcher.Constraint("Equal", 8, 9))
sketch2.addConstraint(Sketcher.Constraint("Equal", 9, 10))
sketch2.addConstraint(Sketcher.Constraint("Equal", 10, 11))
sketch2.addConstraint(Sketcher.Constraint("Equal", 11, 12))
sketch2.addConstraint(Sketcher.Constraint("Equal", 12, 13))
sketch2.addConstraint(Sketcher.Constraint("Equal", 13, 14))
sketch2.addConstraint(Sketcher.Constraint("Equal", 14, 15))
sketch2.addConstraint(Sketcher.Constraint("Equal", 15, 16))
sketch2.addConstraint(Sketcher.Constraint("Equal", 16, 17))
sketch2.addConstraint(Sketcher.Constraint("Equal", 17, 18))
sketch2.addConstraint(Sketcher.Constraint("Equal", 18, 19))
sketch2.addConstraint(Sketcher.Constraint("Equal", 19, 20))
sketch2.addConstraint(Sketcher.Constraint("Horizontal", 0, 3, 1, 3))
sketch2.addConstraint(Sketcher.Constraint("Horizontal", 1, 3, 2, 3))
sketch2.addConstraint(Sketcher.Constraint("Horizontal", 2, 3, 3, 3))
sketch2.addConstraint(Sketcher.Constraint("Horizontal", 3, 3, 4, 3))
sketch2.addConstraint(Sketcher.Constraint("Horizontal", 4, 3, 5, 3))
sketch2.addConstraint(Sketcher.Constraint("Horizontal", 5, 3, 6, 3))
sketch2.addConstraint(Sketcher.Constraint("Horizontal", 7, 3, 8, 3))
sketch2.addConstraint(Sketcher.Constraint("Horizontal", 8, 3, 9, 3))
sketch2.addConstraint(Sketcher.Constraint("Horizontal", 9, 3, 10, 3))
sketch2.addConstraint(Sketcher.Constraint("Horizontal", 10, 3, 11, 3))
sketch2.addConstraint(Sketcher.Constraint("Horizontal", 11, 3, 12, 3))
sketch2.addConstraint(Sketcher.Constraint("Horizontal", 12, 3, 13, 3))
sketch2.addConstraint(Sketcher.Constraint("Horizontal", 14, 3, 15, 3))
sketch2.addConstraint(Sketcher.Constraint("Horizontal", 15, 3, 16, 3))
sketch2.addConstraint(Sketcher.Constraint("Horizontal", 16, 3, 17, 3))
sketch2.addConstraint(Sketcher.Constraint("Horizontal", 17, 3, 18, 3))
sketch2.addConstraint(Sketcher.Constraint("Horizontal", 18, 3, 19, 3))
sketch2.addConstraint(Sketcher.Constraint("Horizontal", 19, 3, 20, 3))
sketch2.addConstraint(Sketcher.Constraint("Vertical", 2, 3, 7, 3))
sketch2.addConstraint(Sketcher.Constraint("Vertical", 0, 3, 8, 3))
sketch2.addConstraint(Sketcher.Constraint("Vertical", 1, 3, 9, 3))
sketch2.addConstraint(Sketcher.Constraint("Vertical", 6, 3, 10, 3))
sketch2.addConstraint(Sketcher.Constraint("Vertical", 4, 3, 11, 3))
sketch2.addConstraint(Sketcher.Constraint("Vertical", 5, 3, 12, 3))
sketch2.addConstraint(Sketcher.Constraint("Vertical", 3, 3, 13, 3))
sketch2.addConstraint(Sketcher.Constraint("Vertical", 7, 3, 14, 3))
sketch2.addConstraint(Sketcher.Constraint("Vertical", 12, 3, 15, 3))
sketch2.addConstraint(Sketcher.Constraint("Vertical", 10, 3, 16, 3))
sketch2.addConstraint(Sketcher.Constraint("Vertical", 11, 3, 17, 3))
sketch2.addConstraint(Sketcher.Constraint("Vertical", 13, 3, 18, 3))
sketch2.addConstraint(Sketcher.Constraint("Vertical", 8, 3, 19, 3))
sketch2.addConstraint(Sketcher.Constraint("Vertical", 9, 3, 20, 3))
sketch2.addConstraint(Sketcher.Constraint("DistanceX", 0, 3, 1, 3, Q("3 in")))
sketch2.addConstraint(Sketcher.Constraint("DistanceX", 2, 3, 0, 3, Q("3 in")))
sketch2.addConstraint(Sketcher.Constraint("DistanceX", 3, 3, 2, 3, Q("3 in")))
sketch2.addConstraint(Sketcher.Constraint("DistanceX", 4, 3, 5, 3, Q("3 in")))
sketch2.addConstraint(Sketcher.Constraint("DistanceX", 6, 3, 4, 3, Q("3 in")))
sketch2.addConstraint(Sketcher.Constraint("DistanceX", 2, 3, 4, 3, Q("1.5 in")))
sketch2.addConstraint(Sketcher.Constraint("Diameter", 0, Q("8 mm")))
sketch2.addConstraint(Sketcher.Constraint("DistanceY", 7, 3, 2, 3, Q("2.5625 in")))
sketch2.addConstraint(Sketcher.Constraint("DistanceY", 14, 3, 7, 3, Q("2.5625 in")))
sketch2.addConstraint(Sketcher.Constraint("DistanceY", -1, 1, 0, 3, Q("114.32535 mm")))
sketch2.addConstraint(Sketcher.Constraint("DistanceX", -1, 1, 0, 3, Q("34.611914 mm")))
doc.recompute()
hole = body.newObject("PartDesign::Hole", "Hole")
hole.Profile = sketch2
hole.ThreadType = "None"
hole.setExpression("Diameter", "Params.hole_diameter")
hole.DepthType = "ThroughAll"
hole.Reversed = True

# Sketch on XY plane
sketch3 = body.newObject("Sketcher::SketchObject", "Sketch002")
sketch3.AttachmentSupport = (doc.getObject("XY_Plane"), [""])
sketch3.MapMode = "FlatFace"
sketch3.addGeometry(Part.Circle(App.Vector(-149.5, -88.9, 0), App.Vector(0, 0, 1), 2.1), False)
sketch3.addGeometry(Part.Circle(App.Vector(-149.5, 25.4, 0), App.Vector(0, 0, 1), 2.1), False)
sketch3.addGeometry(Part.Circle(App.Vector(-149.5, 139.7, 0), App.Vector(0, 0, 1), 2.1), False)
sketch3.addGeometry(Part.Circle(App.Vector(-2.9, -88.9, 0), App.Vector(0, 0, 1), 2.1), False)
sketch3.addGeometry(Part.Circle(App.Vector(142.6, -88.9, 0), App.Vector(0, 0, 1), 2.1), False)
sketch3.addGeometry(Part.Circle(App.Vector(142.6, 25.4, 0), App.Vector(0, 0, 1), 2.1), False)
sketch3.addGeometry(Part.Circle(App.Vector(142.6, 139.7, 0), App.Vector(0, 0, 1), 2.1), False)
sketch3.addGeometry(Part.Circle(App.Vector(-3.5, 139.7, 0), App.Vector(0, 0, 1), 2.1), False)
sketch3.addConstraint(Sketcher.Constraint("Equal", 0, 1))
sketch3.addConstraint(Sketcher.Constraint("Equal", 1, 2))
sketch3.addConstraint(Sketcher.Constraint("Equal", 2, 3))
sketch3.addConstraint(Sketcher.Constraint("Equal", 3, 4))
sketch3.addConstraint(Sketcher.Constraint("Equal", 4, 5))
sketch3.addConstraint(Sketcher.Constraint("Equal", 5, 6))
sketch3.addConstraint(Sketcher.Constraint("Equal", 6, 7))
sketch3.addConstraint(Sketcher.Constraint("Horizontal", 0, 3, 3, 3))
sketch3.addConstraint(Sketcher.Constraint("Horizontal", 3, 3, 4, 3))
sketch3.addConstraint(Sketcher.Constraint("Horizontal", 1, 3, 5, 3))
sketch3.addConstraint(Sketcher.Constraint("Horizontal", 2, 3, 6, 3))
sketch3.addConstraint(Sketcher.Constraint("Horizontal", 6, 3, 7, 3))
sketch3.addConstraint(Sketcher.Constraint("Vertical", 0, 3, 1, 3))
sketch3.addConstraint(Sketcher.Constraint("Vertical", 1, 3, 2, 3))
sketch3.addConstraint(Sketcher.Constraint("Vertical", 4, 3, 5, 3))
sketch3.addConstraint(Sketcher.Constraint("Vertical", 5, 3, 6, 3))
sketch3.addConstraint(Sketcher.Constraint("Diameter", 0, Q("0.164 in")))
sketch3.addConstraint(Sketcher.Constraint("DistanceY", 0, 3, 2, 3, Q("9 in")))
sketch3.addConstraint(Sketcher.Constraint("DistanceY", 0, 3, 1, 3, Q("4.5 in")))
sketch3.addConstraint(Sketcher.Constraint("DistanceX", 0, 3, 4, 3, Q("11.5 in")))
sketch3.addConstraint(Sketcher.Constraint("DistanceX", 2, 3, 7, 3, Q("5.75 in")))
sketch3.addConstraint(Sketcher.Constraint("DistanceX", 0, 3, 3, 3, Q("5.775 in")))
sketch3.addConstraint(Sketcher.Constraint("DistanceY", 0, 3, -1, 1, Q("88.87465 mm")))
sketch3.addConstraint(Sketcher.Constraint("DistanceX", 0, 3, -1, 1, Q("149.538086 mm")))
sketch3.setExpression("Constraints[16]", "Params.sketch3_diameter")
doc.recompute()
hole2 = body.newObject("PartDesign::Hole", "Hole001")
hole2.Profile = sketch3
hole2.ThreadType = "None"
hole2.setExpression("Diameter", "Params.hole2_diameter")
hole2.DepthType = "ThroughAll"
hole2.Reversed = True

doc.recompute()
